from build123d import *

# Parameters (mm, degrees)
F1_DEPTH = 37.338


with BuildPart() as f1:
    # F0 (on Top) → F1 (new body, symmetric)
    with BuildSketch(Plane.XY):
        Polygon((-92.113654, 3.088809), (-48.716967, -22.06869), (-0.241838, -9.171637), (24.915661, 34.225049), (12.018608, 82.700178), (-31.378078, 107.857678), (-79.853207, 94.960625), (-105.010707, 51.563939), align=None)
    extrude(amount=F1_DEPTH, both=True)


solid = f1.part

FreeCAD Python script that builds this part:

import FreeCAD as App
import Part
import Sketcher

V = App.Vector
Q = App.Units.Quantity

doc = App.newDocument("Part")
body = doc.addObject("PartDesign::Body", "Body")

# Sketch on XY plane
sketch1 = doc.addObject("Sketcher::SketchObject", "Sketch")
body.addObject(sketch1)
sketch1.AttachmentSupport = (doc.XY_Plane, [""])
sketch1.MapMode = "FlatFace"
sketch1.addGeometry(Part.LineSegment(V(-92.113654, 3.088809, 0), V(-48.716967, -22.06869, 0)), False)
sketch1.addGeometry(Part.LineSegment(V(-48.716967, -22.06869, 0), V(-0.241838, -9.171637, 0)), False)
sketch1.addGeometry(Part.LineSegment(V(-0.241838, -9.171637, 0), V(24.915661, 34.225049, 0)), False)
sketch1.addGeometry(Part.LineSegment(V(24.915661, 34.225049, 0), V(12.018608, 82.700178, 0)), False)
sketch1.addGeometry(Part.LineSegment(V(12.018608, 82.700178, 0), V(-31.378078, 107.857678, 0)), False)
sketch1.addGeometry(Part.LineSegment(V(-31.378078, 107.857678, 0), V(-79.853207, 94.960625, 0)), False)
sketch1.addGeometry(Part.LineSegment(V(-79.853207, 94.960625, 0), V(-105.010707, 51.563939, 0)), False)
sketch1.addGeometry(Part.LineSegment(V(-105.010707, 51.563939, 0), V(-92.113654, 3.088809, 0)), False)
sketch1.addConstraint(Sketcher.Constraint("Coincident", 0, 2, 1, 1))
sketch1.addConstraint(Sketcher.Constraint("Coincident", 1, 2, 2, 1))
sketch1.addConstraint(Sketcher.Constraint("Coincident", 2, 2, 3, 1))
sketch1.addConstraint(Sketcher.Constraint("Coincident", 3, 2, 4, 1))
sketch1.addConstraint(Sketcher.Constraint("Coincident", 4, 2, 5, 1))
sketch1.addConstraint(Sketcher.Constraint("Coincident", 5, 2, 6, 1))
sketch1.addConstraint(Sketcher.Constraint("Coincident", 6, 2, 7, 1))
sketch1.addConstraint(Sketcher.Constraint("Coincident", 7, 2, 0, 1))
sketch1.addConstraint(Sketcher.Constraint("Perpendicular", 0, 2))
sketch1.addConstraint(Sketcher.Constraint("Perpendicular", 1, 3))
sketch1.addConstraint(Sketcher.Constraint("Perpendicular", 2, 4))
sketch1.addConstraint(Sketcher.Constraint("Perpendicular", 3, 5))
sketch1.addConstraint(Sketcher.Constraint("Perpendicular", 4, 6))
sketch1.addConstraint(Sketcher.Constraint("Perpendicular", 5, 7))
sketch1.addConstraint(Sketcher.Constraint("Equal", 0, 1))
sketch1.addConstraint(Sketcher.Constraint("Equal", 1, 2))
sketch1.addConstraint(Sketcher.Constraint("Equal", 2, 3))
sketch1.addConstraint(Sketcher.Constraint("Equal", 3, 4))
sketch1.addConstraint(Sketcher.Constraint("Equal", 4, 5))
sketch1.addConstraint(Sketcher.Constraint("DistanceX", 1, 2, 2, 2, Q("25.157499 mm")))
sketch1.addConstraint(Sketcher.Constraint("Distance", 0, Q("50.161461 mm")))
sketch1.addConstraint(Sketcher.Constraint("DistanceY", 0, 2, -1, 1, Q("22.06869 mm")))
sketch1.addConstraint(Sketcher.Constraint("DistanceX", -1, 1, 2, 2, Q("24.915661 mm")))
sketch1.addConstraint(Sketcher.Constraint("DistanceY", -1, 1, 2, 2, Q("34.225049 mm")))
pad1 = doc.addObject("PartDesign::Pad", "Pad")
body.addObject(pad1)
pad1.Profile = sketch1
pad1.Length = Q("2.94 in")
pad1.Midplane = True

doc.recompute()
